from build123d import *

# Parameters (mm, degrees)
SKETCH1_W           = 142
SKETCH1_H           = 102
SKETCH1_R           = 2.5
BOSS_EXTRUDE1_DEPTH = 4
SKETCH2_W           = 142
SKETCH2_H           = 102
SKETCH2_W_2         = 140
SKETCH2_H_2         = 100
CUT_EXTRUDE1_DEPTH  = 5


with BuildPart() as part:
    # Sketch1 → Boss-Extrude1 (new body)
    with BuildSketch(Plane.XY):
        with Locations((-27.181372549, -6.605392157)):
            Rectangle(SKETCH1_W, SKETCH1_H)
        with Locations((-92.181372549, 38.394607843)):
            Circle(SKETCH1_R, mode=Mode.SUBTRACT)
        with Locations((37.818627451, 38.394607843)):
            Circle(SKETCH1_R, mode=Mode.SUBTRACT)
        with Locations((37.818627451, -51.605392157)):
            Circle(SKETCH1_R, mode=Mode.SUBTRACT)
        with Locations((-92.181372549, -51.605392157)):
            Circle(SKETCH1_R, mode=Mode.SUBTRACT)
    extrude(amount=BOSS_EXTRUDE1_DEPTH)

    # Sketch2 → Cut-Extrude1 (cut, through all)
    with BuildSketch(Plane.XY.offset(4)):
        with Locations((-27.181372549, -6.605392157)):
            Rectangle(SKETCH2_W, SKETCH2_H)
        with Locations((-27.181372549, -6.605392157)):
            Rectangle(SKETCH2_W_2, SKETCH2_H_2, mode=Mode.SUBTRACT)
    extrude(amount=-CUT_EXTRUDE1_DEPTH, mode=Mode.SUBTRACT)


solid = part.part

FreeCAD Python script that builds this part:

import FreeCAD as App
import Part
import Sketcher

doc = App.newDocument("Part")
params = doc.addObject("Spreadsheet::Sheet", "Params")
for row, (alias, value) in enumerate([
    ("sketch1_diameter", "5 mm"),
    ("sketch1_width", "142 mm"),
    ("sketch1_height", "102 mm"),
    ("pad1_length", "4 mm"),
    ("sketch2_width", "142 mm"),
    ("sketch2_width2", "140 mm"),
    ("sketch2_height", "102 mm"),
    ("sketch2_height2", "100 mm"),
], start=1):
    params.set(f"A{row}", alias)
    params.set(f"B{row}", "=" + value)
    params.setAlias(f"B{row}", alias)

body = doc.addObject("PartDesign::Body", "Body")

sketch1 = body.newObject("Sketcher::SketchObject", "Sketch")
sketch1.AttachmentSupport = (doc.getObject("XY_Plane"), [""])
sketch1.MapMode = "FlatFace"
sketch1.addGeometry([
    Part.LineSegment(App.Vector(-98.2, 44.4, 0), App.Vector(-98.2, -57.6, 0)),
    Part.LineSegment(App.Vector(-98.2, -57.6, 0), App.Vector(43.8, -57.6, 0)),
    Part.LineSegment(App.Vector(43.8, -57.6, 0), App.Vector(43.8, 44.4, 0)),
    Part.LineSegment(App.Vector(43.8, 44.4, 0), App.Vector(-98.2, 44.4, 0)),
    Part.Circle(App.Vector(-92.2, -51.6, 0), App.Vector(0, 0, 1), 2.5),
    Part.Circle(App.Vector(37.8, -51.6, 0), App.Vector(0, 0, 1), 2.5),
    Part.Circle(App.Vector(-92.2, 38.4, 0), App.Vector(0, 0, 1), 2.5),
    Part.Circle(App.Vector(37.8, 38.4, 0), App.Vector(0, 0, 1), 2.5),
], False)
sketch1.addConstraint([
    Sketcher.Constraint("Coincident", 0, 2, 1, 1),
    Sketcher.Constraint("Coincident", 1, 2, 2, 1),
    Sketcher.Constraint("Coincident", 2, 2, 3, 1),
    Sketcher.Constraint("Coincident", 3, 2, 0, 1),
    Sketcher.Constraint("Vertical", 0),
    Sketcher.Constraint("Horizontal", 1),
    Sketcher.Constraint("Vertical", 2),
    Sketcher.Constraint("Horizontal", 3),
    Sketcher.Constraint("Equal", 4, 5),
    Sketcher.Constraint("Equal", 5, 6),
    Sketcher.Constraint("Equal", 6, 7),
    Sketcher.Constraint("Horizontal", 4, 3, 5, 3),
    Sketcher.Constraint("Horizontal", 6, 3, 7, 3),
    Sketcher.Constraint("Vertical", 4, 3, 6, 3),
    Sketcher.Constraint("Vertical", 5, 3, 7, 3),
    Sketcher.Constraint("Diameter", 4, 5.0),
    Sketcher.Constraint("DistanceX", 1, 1, 1, 2, 142.0),
    Sketcher.Constraint("DistanceY", 0, 2, 0, 1, 102.0),
    Sketcher.Constraint("DistanceX", 4, 3, 5, 3, 130.0),
    Sketcher.Constraint("DistanceY", 4, 3, 6, 3, 90.0),
    Sketcher.Constraint("DistanceX", 0, 2, 4, 3, 6.0),
    Sketcher.Constraint("DistanceY", 0, 2, 4, 3, 6.0),
    Sketcher.Constraint("DistanceX", 4, 3, -1, 1, 92.181373),
    Sketcher.Constraint("DistanceY", 4, 3, -1, 1, 51.605392),
])
sketch1.setExpression("Constraints[15]", "Params.sketch1_diameter")
sketch1.setExpression("Constraints[16]", "Params.sketch1_width")
sketch1.setExpression("Constraints[17]", "Params.sketch1_height")
pad1 = body.newObject("PartDesign::Pad", "Pad")
pad1.Profile = sketch1
pad1.setExpression("Length", "Params.pad1_length")

sketch2 = body.newObject("Sketcher::SketchObject", "Sketch001")
sketch2.AttachmentSupport = (doc.getObject("XY_Plane"), [""])
sketch2.MapMode = "FlatFace"
sketch2.AttachmentOffset = App.Placement(App.Vector(0, 0, 4), App.Rotation())
sketch2.addGeometry([
    Part.LineSegment(App.Vector(-98, 44, 0), App.Vector(-98, -58, 0)),
    Part.LineSegment(App.Vector(-98, -58, 0), App.Vector(44, -58, 0)),
    Part.LineSegment(App.Vector(44, -58, 0), App.Vector(44, 44, 0)),
    Part.LineSegment(App.Vector(44, 44, 0), App.Vector(-98, 44, 0)),
    Part.LineSegment(App.Vector(43, -57, 0), App.Vector(-97, -57, 0)),
    Part.LineSegment(App.Vector(-97, -57, 0), App.Vector(-97, 43, 0)),
    Part.LineSegment(App.Vector(-97, 43, 0), App.Vector(43, 43, 0)),
    Part.LineSegment(App.Vector(43, 43, 0), App.Vector(43, -57, 0)),
], False)
sketch2.addConstraint([
    Sketcher.Constraint("Coincident", 0, 2, 1, 1),
    Sketcher.Constraint("Coincident", 1, 2, 2, 1),
    Sketcher.Constraint("Coincident", 2, 2, 3, 1),
    Sketcher.Constraint("Coincident", 3, 2, 0, 1),
    Sketcher.Constraint("Coincident", 4, 2, 5, 1),
    Sketcher.Constraint("Coincident", 5, 2, 6, 1),
    Sketcher.Constraint("Coincident", 6, 2, 7, 1),
    Sketcher.Constraint("Coincident", 7, 2, 4, 1),
    Sketcher.Constraint("Vertical", 0),
    Sketcher.Constraint("Horizontal", 1),
    Sketcher.Constraint("Vertical", 2),
    Sketcher.Constraint("Horizontal", 3),
    Sketcher.Constraint("Horizontal", 4),
    Sketcher.Constraint("Vertical", 5),
    Sketcher.Constraint("Horizontal", 6),
    Sketcher.Constraint("Vertical", 7),
    Sketcher.Constraint("DistanceX", 1, 1, 1, 2, 142.0),
    Sketcher.Constraint("DistanceX", 4, 2, 4, 1, 140.0),
    Sketcher.Constraint("DistanceY", 0, 2, 0, 1, 102.0),
    Sketcher.Constraint("DistanceY", 5, 1, 5, 2, 100.0),
    Sketcher.Constraint("DistanceX", 0, 2, 4, 2, 1.0),
    Sketcher.Constraint("DistanceY", 0, 2, 4, 2, 1.0),
    Sketcher.Constraint("DistanceX", 0, 2, -1, 1, 98.181373),
    Sketcher.Constraint("DistanceY", 0, 2, -1, 1, 57.605392),
])
sketch2.setExpression("Constraints[16]", "Params.sketch2_width")
sketch2.setExpression("Constraints[17]", "Params.sketch2_width2")
sketch2.setExpression("Constraints[18]", "Params.sketch2_height")
sketch2.setExpression("Constraints[19]", "Params.sketch2_height2")
pocket1 = body.newObject("PartDesign::Pocket", "Pocket")
pocket1.Profile = sketch2
pocket1.Type = "ThroughAll"

doc.recompute()
